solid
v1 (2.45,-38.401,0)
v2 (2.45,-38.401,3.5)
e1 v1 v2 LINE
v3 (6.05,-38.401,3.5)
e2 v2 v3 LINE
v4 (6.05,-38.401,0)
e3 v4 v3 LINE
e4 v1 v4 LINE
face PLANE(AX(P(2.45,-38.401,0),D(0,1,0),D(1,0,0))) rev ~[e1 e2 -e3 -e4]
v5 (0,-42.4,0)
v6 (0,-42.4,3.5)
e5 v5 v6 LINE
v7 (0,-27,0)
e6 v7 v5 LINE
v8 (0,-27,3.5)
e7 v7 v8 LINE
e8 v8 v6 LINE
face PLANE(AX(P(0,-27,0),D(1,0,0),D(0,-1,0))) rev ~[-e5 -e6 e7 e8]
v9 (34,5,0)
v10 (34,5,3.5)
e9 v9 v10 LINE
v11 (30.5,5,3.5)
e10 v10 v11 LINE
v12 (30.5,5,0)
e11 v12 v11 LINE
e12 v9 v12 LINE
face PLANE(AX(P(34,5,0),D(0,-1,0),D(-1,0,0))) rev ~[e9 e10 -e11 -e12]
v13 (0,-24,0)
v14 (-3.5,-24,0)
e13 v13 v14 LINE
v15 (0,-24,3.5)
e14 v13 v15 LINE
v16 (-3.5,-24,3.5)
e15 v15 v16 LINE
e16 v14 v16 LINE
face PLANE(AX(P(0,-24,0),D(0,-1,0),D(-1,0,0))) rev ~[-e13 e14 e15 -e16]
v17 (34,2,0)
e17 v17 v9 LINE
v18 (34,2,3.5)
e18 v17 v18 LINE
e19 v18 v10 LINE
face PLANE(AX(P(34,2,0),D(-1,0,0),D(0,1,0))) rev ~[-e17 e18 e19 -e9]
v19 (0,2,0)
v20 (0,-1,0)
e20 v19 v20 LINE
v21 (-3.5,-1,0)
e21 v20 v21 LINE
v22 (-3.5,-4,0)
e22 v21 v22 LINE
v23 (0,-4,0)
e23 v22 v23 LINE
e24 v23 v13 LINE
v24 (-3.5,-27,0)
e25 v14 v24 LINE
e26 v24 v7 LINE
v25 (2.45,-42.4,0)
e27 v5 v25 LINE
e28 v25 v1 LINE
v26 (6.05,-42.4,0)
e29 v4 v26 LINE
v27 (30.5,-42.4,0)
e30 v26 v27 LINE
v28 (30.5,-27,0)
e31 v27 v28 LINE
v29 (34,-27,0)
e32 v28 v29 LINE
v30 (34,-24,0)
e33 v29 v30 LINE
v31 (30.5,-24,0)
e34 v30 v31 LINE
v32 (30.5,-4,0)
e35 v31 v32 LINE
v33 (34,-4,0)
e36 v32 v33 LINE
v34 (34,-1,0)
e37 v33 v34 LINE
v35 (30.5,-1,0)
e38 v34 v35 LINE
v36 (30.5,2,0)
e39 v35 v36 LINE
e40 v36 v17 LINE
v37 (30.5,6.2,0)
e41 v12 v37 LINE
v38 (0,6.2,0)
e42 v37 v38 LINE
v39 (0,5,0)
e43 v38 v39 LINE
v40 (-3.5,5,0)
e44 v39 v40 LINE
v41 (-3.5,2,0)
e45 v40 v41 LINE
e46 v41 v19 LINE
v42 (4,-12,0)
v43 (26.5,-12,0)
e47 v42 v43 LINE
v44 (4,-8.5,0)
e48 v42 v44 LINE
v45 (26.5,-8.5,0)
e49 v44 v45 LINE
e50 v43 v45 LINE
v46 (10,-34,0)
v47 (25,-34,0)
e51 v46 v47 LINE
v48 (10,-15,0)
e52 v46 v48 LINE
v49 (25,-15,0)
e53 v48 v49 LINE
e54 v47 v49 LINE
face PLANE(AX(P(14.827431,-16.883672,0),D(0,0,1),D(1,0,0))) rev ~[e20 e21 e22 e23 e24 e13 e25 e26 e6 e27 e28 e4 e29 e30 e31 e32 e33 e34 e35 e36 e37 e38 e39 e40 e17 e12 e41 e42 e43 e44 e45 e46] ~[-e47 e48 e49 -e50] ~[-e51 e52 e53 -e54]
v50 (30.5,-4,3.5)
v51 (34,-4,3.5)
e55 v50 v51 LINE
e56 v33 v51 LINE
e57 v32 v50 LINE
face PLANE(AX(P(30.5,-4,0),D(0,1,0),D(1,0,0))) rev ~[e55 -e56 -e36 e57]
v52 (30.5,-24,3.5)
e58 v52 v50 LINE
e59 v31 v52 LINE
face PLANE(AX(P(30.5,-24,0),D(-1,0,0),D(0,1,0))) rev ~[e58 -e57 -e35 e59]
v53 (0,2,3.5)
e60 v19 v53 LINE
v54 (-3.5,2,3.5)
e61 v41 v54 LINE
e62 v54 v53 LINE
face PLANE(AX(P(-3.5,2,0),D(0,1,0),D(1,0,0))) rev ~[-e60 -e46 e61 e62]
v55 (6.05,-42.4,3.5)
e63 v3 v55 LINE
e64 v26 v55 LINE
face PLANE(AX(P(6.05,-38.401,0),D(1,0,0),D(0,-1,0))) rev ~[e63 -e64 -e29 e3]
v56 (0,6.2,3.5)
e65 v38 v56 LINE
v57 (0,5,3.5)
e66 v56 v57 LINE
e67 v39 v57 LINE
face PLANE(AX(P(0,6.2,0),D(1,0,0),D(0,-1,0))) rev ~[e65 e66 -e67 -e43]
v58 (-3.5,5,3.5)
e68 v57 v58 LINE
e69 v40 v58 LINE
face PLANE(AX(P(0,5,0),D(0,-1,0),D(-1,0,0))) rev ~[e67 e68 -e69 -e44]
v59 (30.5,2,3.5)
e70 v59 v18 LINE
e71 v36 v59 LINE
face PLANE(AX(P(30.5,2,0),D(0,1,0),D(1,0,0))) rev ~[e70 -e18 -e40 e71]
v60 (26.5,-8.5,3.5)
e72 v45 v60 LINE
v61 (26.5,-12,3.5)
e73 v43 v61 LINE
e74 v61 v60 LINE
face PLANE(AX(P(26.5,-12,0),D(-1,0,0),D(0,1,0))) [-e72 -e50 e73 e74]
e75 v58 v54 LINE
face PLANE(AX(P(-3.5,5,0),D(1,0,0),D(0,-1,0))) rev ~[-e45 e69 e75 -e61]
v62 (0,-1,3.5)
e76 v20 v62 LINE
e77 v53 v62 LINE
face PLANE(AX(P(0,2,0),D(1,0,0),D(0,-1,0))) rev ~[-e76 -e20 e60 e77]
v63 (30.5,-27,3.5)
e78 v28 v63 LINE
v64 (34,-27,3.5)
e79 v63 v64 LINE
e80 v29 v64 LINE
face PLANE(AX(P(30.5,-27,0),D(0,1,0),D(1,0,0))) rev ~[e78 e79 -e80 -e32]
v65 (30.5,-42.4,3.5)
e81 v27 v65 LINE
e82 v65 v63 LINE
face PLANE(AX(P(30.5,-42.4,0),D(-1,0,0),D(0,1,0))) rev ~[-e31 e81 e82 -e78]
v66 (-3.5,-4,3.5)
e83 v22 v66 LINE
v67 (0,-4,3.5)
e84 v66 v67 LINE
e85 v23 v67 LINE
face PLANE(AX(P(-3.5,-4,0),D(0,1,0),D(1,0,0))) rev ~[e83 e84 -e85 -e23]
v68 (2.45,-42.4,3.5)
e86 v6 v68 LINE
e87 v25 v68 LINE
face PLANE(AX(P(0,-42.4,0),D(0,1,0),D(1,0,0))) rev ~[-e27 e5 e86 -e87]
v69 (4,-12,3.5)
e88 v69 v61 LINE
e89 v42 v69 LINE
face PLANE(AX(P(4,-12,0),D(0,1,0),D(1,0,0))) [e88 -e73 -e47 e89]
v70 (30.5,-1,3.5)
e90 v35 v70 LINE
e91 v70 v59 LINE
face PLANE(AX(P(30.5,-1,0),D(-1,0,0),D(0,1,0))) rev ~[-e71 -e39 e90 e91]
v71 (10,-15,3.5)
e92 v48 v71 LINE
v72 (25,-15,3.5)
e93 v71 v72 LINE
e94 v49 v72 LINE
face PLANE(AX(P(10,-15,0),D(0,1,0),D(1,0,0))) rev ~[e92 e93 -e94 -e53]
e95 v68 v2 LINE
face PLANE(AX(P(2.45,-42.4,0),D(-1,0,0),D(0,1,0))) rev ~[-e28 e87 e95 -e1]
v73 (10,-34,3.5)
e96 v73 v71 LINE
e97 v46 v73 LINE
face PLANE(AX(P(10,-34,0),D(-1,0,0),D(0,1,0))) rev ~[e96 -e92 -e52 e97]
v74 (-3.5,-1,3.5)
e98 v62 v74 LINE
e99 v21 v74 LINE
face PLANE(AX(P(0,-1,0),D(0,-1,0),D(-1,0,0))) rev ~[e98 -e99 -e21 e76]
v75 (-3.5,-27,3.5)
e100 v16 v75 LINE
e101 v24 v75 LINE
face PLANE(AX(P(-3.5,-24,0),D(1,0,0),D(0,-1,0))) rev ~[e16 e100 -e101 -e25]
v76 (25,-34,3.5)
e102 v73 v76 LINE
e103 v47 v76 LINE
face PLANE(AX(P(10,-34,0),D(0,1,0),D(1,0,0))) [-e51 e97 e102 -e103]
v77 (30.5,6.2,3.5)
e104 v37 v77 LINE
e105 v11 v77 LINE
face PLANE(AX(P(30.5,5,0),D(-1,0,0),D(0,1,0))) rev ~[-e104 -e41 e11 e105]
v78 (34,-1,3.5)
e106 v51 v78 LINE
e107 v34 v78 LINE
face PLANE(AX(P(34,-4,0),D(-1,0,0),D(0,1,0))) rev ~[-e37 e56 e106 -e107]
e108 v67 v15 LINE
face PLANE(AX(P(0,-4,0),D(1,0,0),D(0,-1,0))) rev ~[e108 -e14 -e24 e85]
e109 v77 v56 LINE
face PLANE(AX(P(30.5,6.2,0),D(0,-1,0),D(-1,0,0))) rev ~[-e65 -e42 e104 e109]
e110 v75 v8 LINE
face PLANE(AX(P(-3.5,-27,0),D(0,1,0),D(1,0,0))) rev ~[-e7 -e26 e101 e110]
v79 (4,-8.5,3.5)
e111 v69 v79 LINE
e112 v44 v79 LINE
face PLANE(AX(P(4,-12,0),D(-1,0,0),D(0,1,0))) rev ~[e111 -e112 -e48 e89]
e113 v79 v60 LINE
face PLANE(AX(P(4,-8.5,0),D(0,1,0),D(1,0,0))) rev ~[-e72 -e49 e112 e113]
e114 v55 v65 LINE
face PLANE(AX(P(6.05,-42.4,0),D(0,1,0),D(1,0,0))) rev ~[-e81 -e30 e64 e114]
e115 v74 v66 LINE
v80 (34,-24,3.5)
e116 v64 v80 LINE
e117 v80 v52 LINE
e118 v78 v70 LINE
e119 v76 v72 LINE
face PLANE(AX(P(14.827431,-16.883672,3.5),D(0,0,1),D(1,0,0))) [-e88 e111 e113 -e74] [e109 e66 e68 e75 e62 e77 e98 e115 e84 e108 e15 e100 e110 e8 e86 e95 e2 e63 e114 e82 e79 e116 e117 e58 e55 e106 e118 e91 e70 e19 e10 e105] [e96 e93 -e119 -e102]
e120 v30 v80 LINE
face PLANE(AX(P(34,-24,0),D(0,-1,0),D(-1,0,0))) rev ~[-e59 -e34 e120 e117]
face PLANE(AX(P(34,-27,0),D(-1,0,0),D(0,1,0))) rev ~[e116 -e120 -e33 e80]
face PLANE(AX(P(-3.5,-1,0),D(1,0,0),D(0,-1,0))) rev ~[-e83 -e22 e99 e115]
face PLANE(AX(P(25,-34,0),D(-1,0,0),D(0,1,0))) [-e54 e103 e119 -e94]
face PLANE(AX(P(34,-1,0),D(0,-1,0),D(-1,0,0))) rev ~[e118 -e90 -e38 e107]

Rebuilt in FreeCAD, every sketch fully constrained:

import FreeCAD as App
import Part
import Sketcher


def add_polygon(sketch, points):
    """Adds a closed chain of lines whose ends are joined by coincident constraints."""
    first, n = sketch.GeometryCount, len(points)
    for a, b in zip(points, points[1:] + points[:1]):
        sketch.addGeometry(Part.LineSegment(App.Vector(*a, 0), App.Vector(*b, 0)), False)
    for i in range(n):
        sketch.addConstraint(Sketcher.Constraint("Coincident", first + i, 2, first + (i + 1) % n, 1))

doc = App.newDocument("Part")
body = doc.addObject("PartDesign::Body", "Body")

# Sketch on XY plane
sketch1 = doc.addObject("Sketcher::SketchObject", "Sketch")
body.addObject(sketch1)
sketch1.AttachmentSupport = (doc.XY_Plane, [""])
sketch1.MapMode = "FlatFace"
add_polygon(sketch1, [(0, -42.4), (2.5, -42.4), (2.5, -38.4), (6, -38.4), (6, -42.4), (30.5, -42.4), (30.5, -27), (34, -27), (34, -24), (30.5, -24), (30.5, -4), (34, -4), (34, -1), (30.5, -1), (30.5, 2), (34, 2), (34, 5), (30.5, 5), (30.5, 6.2), (0, 6.2), (0, 5), (-3.5, 5), (-3.5, 2), (0, 2), (0, -1), (-3.5, -1), (-3.5, -4), (0, -4), (0, -24), (-3.5, -24), (-3.5, -27), (0, -27)])  # lines 0-31
add_polygon(sketch1, [(25, -34), (10, -34), (10, -15), (25, -15)])  # lines 32-35
add_polygon(sketch1, [(26.5, -12), (4, -12), (4, -8.5), (26.5, -8.5)])  # lines 36-39
sketch1.addConstraint(Sketcher.Constraint("Horizontal", 0))
sketch1.addConstraint(Sketcher.Constraint("Vertical", 1))
sketch1.addConstraint(Sketcher.Constraint("Horizontal", 2))
sketch1.addConstraint(Sketcher.Constraint("Vertical", 3))
sketch1.addConstraint(Sketcher.Constraint("Horizontal", 4))
sketch1.addConstraint(Sketcher.Constraint("Vertical", 5))
sketch1.addConstraint(Sketcher.Constraint("Horizontal", 6))
sketch1.addConstraint(Sketcher.Constraint("Vertical", 7))
sketch1.addConstraint(Sketcher.Constraint("Horizontal", 8))
sketch1.addConstraint(Sketcher.Constraint("Vertical", 9))
sketch1.addConstraint(Sketcher.Constraint("Horizontal", 10))
sketch1.addConstraint(Sketcher.Constraint("Vertical", 11))
sketch1.addConstraint(Sketcher.Constraint("Horizontal", 12))
sketch1.addConstraint(Sketcher.Constraint("Vertical", 13))
sketch1.addConstraint(Sketcher.Constraint("Horizontal", 14))
sketch1.addConstraint(Sketcher.Constraint("Vertical", 15))
sketch1.addConstraint(Sketcher.Constraint("Horizontal", 16))
sketch1.addConstraint(Sketcher.Constraint("Vertical", 17))
sketch1.addConstraint(Sketcher.Constraint("Horizontal", 18))
sketch1.addConstraint(Sketcher.Constraint("Vertical", 19))
sketch1.addConstraint(Sketcher.Constraint("Horizontal", 20))
sketch1.addConstraint(Sketcher.Constraint("Vertical", 21))
sketch1.addConstraint(Sketcher.Constraint("Horizontal", 22))
sketch1.addConstraint(Sketcher.Constraint("Vertical", 23))
sketch1.addConstraint(Sketcher.Constraint("Horizontal", 24))
sketch1.addConstraint(Sketcher.Constraint("Vertical", 25))
sketch1.addConstraint(Sketcher.Constraint("Horizontal", 26))
sketch1.addConstraint(Sketcher.Constraint("Vertical", 27))
sketch1.addConstraint(Sketcher.Constraint("Horizontal", 28))
sketch1.addConstraint(Sketcher.Constraint("Vertical", 29))
sketch1.addConstraint(Sketcher.Constraint("Horizontal", 30))
sketch1.addConstraint(Sketcher.Constraint("Vertical", 31))
sketch1.addConstraint(Sketcher.Constraint("Horizontal", 32))
sketch1.addConstraint(Sketcher.Constraint("Vertical", 33))
sketch1.addConstraint(Sketcher.Constraint("Horizontal", 34))
sketch1.addConstraint(Sketcher.Constraint("Vertical", 35))
sketch1.addConstraint(Sketcher.Constraint("Horizontal", 36))
sketch1.addConstraint(Sketcher.Constraint("Vertical", 37))
sketch1.addConstraint(Sketcher.Constraint("Horizontal", 38))
sketch1.addConstraint(Sketcher.Constraint("Vertical", 39))
sketch1.addConstraint(Sketcher.Constraint("PointOnObject", 18, 2, -2))
sketch1.addConstraint(Sketcher.Constraint("PointOnObject", 22, 2, -2))
sketch1.addConstraint(Sketcher.Constraint("PointOnObject", 26, 2, -2))
sketch1.addConstraint(Sketcher.Constraint("PointOnObject", 30, 2, -2))
sketch1.addConstraint(Sketcher.Constraint("Horizontal", 0, 2, 3, 2))
sketch1.addConstraint(Sketcher.Constraint("Horizontal", 16, 2, 19, 2))
sketch1.addConstraint(Sketcher.Constraint("Horizontal", 14, 2, 21, 2))
sketch1.addConstraint(Sketcher.Constraint("Horizontal", 12, 2, 23, 2))
sketch1.addConstraint(Sketcher.Constraint("Horizontal", 10, 2, 25, 2))
sketch1.addConstraint(Sketcher.Constraint("Horizontal", 8, 2, 27, 2))
sketch1.addConstraint(Sketcher.Constraint("Horizontal", 6, 2, 29, 2))
sketch1.addConstraint(Sketcher.Constraint("Vertical", 5, 2, 8, 2))
sketch1.addConstraint(Sketcher.Constraint("Vertical", 7, 2, 10, 2))
sketch1.addConstraint(Sketcher.Constraint("Vertical", 9, 2, 12, 2))
sketch1.addConstraint(Sketcher.Constraint("Vertical", 11, 2, 14, 2))
sketch1.addConstraint(Sketcher.Constraint("Vertical", 13, 2, 16, 2))
sketch1.addConstraint(Sketcher.Constraint("Vertical", 21, 2, 24, 2))
sketch1.addConstraint(Sketcher.Constraint("Vertical", 25, 2, 28, 2))
sketch1.addConstraint(Sketcher.Constraint("Equal", 16, 20))
sketch1.addConstraint(Sketcher.Constraint("Equal", 7, 11))
sketch1.addConstraint(Sketcher.Constraint("Equal", 11, 13))
sketch1.addConstraint(Sketcher.Constraint("Equal", 13, 15))
sketch1.addConstraint(Sketcher.Constraint("Equal", 30, 37))
sketch1.addConstraint(Sketcher.Constraint("DistanceX", 32, 2, 32, 1, 15.0))
sketch1.addConstraint(Sketcher.Constraint("DistanceY", 7, 1, 7, 2, 3.0))
sketch1.addConstraint(Sketcher.Constraint("DistanceY", 9, 1, 9, 2, 20.0))
sketch1.addConstraint(Sketcher.Constraint("DistanceY", 33, 1, 33, 2, 19.0))
sketch1.addConstraint(Sketcher.Constraint("DistanceX", 2, 1, 2, 2, 3.6))
sketch1.addConstraint(Sketcher.Constraint("DistanceX", 6, 1, 6, 2, 3.5))
sketch1.addConstraint(Sketcher.Constraint("DistanceX", 18, 2, 18, 1, 30.5))
sketch1.addConstraint(Sketcher.Constraint("DistanceX", 36, 2, 36, 1, 22.5))
sketch1.addConstraint(Sketcher.Constraint("DistanceY", 5, 1, 5, 2, 15.4))
sketch1.addConstraint(Sketcher.Constraint("DistanceY", 17, 1, 17, 2, 1.2))
sketch1.addConstraint(Sketcher.Constraint("DistanceY", 5, 2, -1, 1, 27.0))
sketch1.addConstraint(Sketcher.Constraint("DistanceX", -1, 1, 32, 2, 10.0))
sketch1.addConstraint(Sketcher.Constraint("DistanceY", 32, 2, -1, 1, 34.0))
sketch1.addConstraint(Sketcher.Constraint("DistanceX", -1, 1, 36, 2, 4.0))
sketch1.addConstraint(Sketcher.Constraint("DistanceY", 36, 2, -1, 1, 12.0))
sketch1.addConstraint(Sketcher.Constraint("DistanceX", 0, 1, 0, 2, 2.45))
sketch1.addConstraint(Sketcher.Constraint("DistanceY", 1, 1, 1, 2, 3.999))
pad1 = doc.addObject("PartDesign::Pad", "Pad")
body.addObject(pad1)
pad1.Profile = sketch1
pad1.Length = 3.5

doc.recompute()
